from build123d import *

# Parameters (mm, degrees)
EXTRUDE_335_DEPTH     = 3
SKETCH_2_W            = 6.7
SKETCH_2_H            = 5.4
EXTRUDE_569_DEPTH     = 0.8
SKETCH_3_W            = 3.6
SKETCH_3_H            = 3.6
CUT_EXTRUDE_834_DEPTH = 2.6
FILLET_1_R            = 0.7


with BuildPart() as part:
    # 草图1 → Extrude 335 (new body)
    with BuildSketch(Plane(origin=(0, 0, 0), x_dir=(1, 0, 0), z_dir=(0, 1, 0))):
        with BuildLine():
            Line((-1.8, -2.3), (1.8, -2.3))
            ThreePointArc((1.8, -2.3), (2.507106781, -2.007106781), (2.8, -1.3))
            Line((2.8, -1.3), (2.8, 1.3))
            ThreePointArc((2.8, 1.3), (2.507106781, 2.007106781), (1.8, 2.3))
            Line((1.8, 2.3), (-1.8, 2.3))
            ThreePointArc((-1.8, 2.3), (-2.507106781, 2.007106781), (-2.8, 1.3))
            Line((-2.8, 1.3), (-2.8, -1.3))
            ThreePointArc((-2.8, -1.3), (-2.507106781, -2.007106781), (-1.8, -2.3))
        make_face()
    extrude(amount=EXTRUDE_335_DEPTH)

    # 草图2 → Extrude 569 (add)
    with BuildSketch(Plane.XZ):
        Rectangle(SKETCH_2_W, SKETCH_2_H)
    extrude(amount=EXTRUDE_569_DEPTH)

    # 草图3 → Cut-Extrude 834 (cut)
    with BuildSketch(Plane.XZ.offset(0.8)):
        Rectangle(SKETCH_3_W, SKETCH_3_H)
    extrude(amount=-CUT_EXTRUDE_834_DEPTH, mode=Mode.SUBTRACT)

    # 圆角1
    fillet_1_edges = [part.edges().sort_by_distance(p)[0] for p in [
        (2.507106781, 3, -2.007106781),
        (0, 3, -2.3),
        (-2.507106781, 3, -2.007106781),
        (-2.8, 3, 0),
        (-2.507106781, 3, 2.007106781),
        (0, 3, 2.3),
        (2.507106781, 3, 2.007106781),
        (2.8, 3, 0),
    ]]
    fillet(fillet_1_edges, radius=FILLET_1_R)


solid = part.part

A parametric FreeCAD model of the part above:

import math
import FreeCAD as App
import Part
import Sketcher
Q = App.Units.Quantity


def edges_at(feature, points):
    """Names of the edges that pass closest to the given points."""
    edges = feature.Shape.Edges
    near = lambda p: min(range(len(edges)), key=lambda i: edges[i].distToShape(Part.Vertex(*p))[0])
    return sorted({f"Edge{near(p) + 1}" for p in points})


def add_polygon(sketch, points):
    """Adds a closed chain of lines whose ends are joined by coincident constraints."""
    first, n = sketch.GeometryCount, len(points)
    for a, b in zip(points, points[1:] + points[:1]):
        sketch.addGeometry(Part.LineSegment(App.Vector(*a, 0), App.Vector(*b, 0)), False)
    for i in range(n):
        sketch.addConstraint(Sketcher.Constraint("Coincident", first + i, 2, first + (i + 1) % n, 1))

doc = App.newDocument("Part")
params = doc.addObject("Spreadsheet::Sheet", "Params")
for row, (alias, value) in enumerate([
    ("sketch1_radius", "1 mm"),
    ("sketch1_width", "3.6 mm"),
    ("sketch1_height", "2.6 mm"),
    ("pad1_length", "3 mm"),
    ("sketch2_width", "6.7 mm"),
    ("sketch2_height", "5.4 mm"),
    ("pad2_length", "0.8 mm"),
    ("sketch3_width", "3.6 mm"),
    ("pocket1_length", "2.6 mm"),
    ("fillet_radius", "0.7 mm"),
], start=1):
    params.set(f"A{row}", alias)
    params.set(f"B{row}", "=" + value)
    params.setAlias(f"B{row}", alias)

body = doc.addObject("PartDesign::Body", "Body")

# Sketch on XZ plane
sketch1 = body.newObject("Sketcher::SketchObject", "Sketch")
sketch1.AttachmentSupport = (doc.getObject("XZ_Plane"), [""])
sketch1.MapMode = "FlatFace"
sketch1.addGeometry([
    Part.LineSegment(App.Vector(-1.8, 2.3, 0), App.Vector(1.8, 2.3, 0)),  # 0
    Part.ArcOfCircle(Part.Circle(App.Vector(1.8, 1.3, 0), App.Vector(0, 0, 1), 1), math.radians(0), math.radians(90)),  # 1
    Part.LineSegment(App.Vector(2.8, 1.3, 0), App.Vector(2.8, -1.3, 0)),  # 2
    Part.ArcOfCircle(Part.Circle(App.Vector(1.8, -1.3, 0), App.Vector(0, 0, 1), 1), math.radians(-90), math.radians(0)),  # 3
    Part.LineSegment(App.Vector(1.8, -2.3, 0), App.Vector(-1.8, -2.3, 0)),  # 4
    Part.ArcOfCircle(Part.Circle(App.Vector(-1.8, -1.3, 0), App.Vector(0, 0, 1), 1), math.radians(-180), math.radians(-90)),  # 5
    Part.LineSegment(App.Vector(-2.8, -1.3, 0), App.Vector(-2.8, 1.3, 0)),  # 6
    Part.ArcOfCircle(Part.Circle(App.Vector(-1.8, 1.3, 0), App.Vector(0, 0, 1), 1), math.radians(90), math.radians(180)),  # 7
], False)
sketch1.addConstraint([
    Sketcher.Constraint("Tangent", 0, 2, 1, 2),
    Sketcher.Constraint("Tangent", 1, 1, 2, 1),
    Sketcher.Constraint("Tangent", 2, 2, 3, 2),
    Sketcher.Constraint("Tangent", 3, 1, 4, 1),
    Sketcher.Constraint("Tangent", 4, 2, 5, 2),
    Sketcher.Constraint("Tangent", 5, 1, 6, 1),
    Sketcher.Constraint("Tangent", 6, 2, 7, 2),
    Sketcher.Constraint("Tangent", 7, 1, 0, 1),
    Sketcher.Constraint("Horizontal", 0),
    Sketcher.Constraint("Vertical", 2),
    Sketcher.Constraint("Horizontal", 4),
    Sketcher.Constraint("Vertical", 6),
    Sketcher.Constraint("Equal", 1, 3),
    Sketcher.Constraint("Equal", 3, 5),
    Sketcher.Constraint("Equal", 5, 7),
    Sketcher.Constraint("Symmetric", 1, 3, 5, 3, -1, 1),
    Sketcher.Constraint("Radius", 1, Q("1 mm")),
    Sketcher.Constraint("DistanceX", 0, 1, 0, 2, Q("3.6 mm")),
    Sketcher.Constraint("DistanceY", 2, 2, 2, 1, Q("2.6 mm")),
])
sketch1.setExpression("Constraints[16]", "Params.sketch1_radius")
sketch1.setExpression("Constraints[17]", "Params.sketch1_width")
sketch1.setExpression("Constraints[18]", "Params.sketch1_height")
pad1 = body.newObject("PartDesign::Pad", "Pad")
pad1.Profile = sketch1
pad1.setExpression("Length", "Params.pad1_length")
pad1.Reversed = True

# Sketch on XZ plane
sketch2 = body.newObject("Sketcher::SketchObject", "Sketch001")
sketch2.AttachmentSupport = (doc.getObject("XZ_Plane"), [""])
sketch2.MapMode = "FlatFace"
add_polygon(sketch2, [(-3, 3), (-3, -3), (3, -3), (3, 3)])  # lines 0-3
sketch2.addConstraint([
    Sketcher.Constraint("Vertical", 0),
    Sketcher.Constraint("Horizontal", 1),
    Sketcher.Constraint("Vertical", 2),
    Sketcher.Constraint("Horizontal", 3),
    Sketcher.Constraint("Symmetric", 0, 2, 2, 2, -1, 1),
    Sketcher.Constraint("DistanceX", 1, 1, 1, 2, Q("6.7 mm")),
    Sketcher.Constraint("DistanceY", 0, 2, 0, 1, Q("5.4 mm")),
])
sketch2.setExpression("Constraints[9]", "Params.sketch2_width")
sketch2.setExpression("Constraints[10]", "Params.sketch2_height")
pad2 = body.newObject("PartDesign::Pad", "Pad001")
pad2.Profile = sketch2
pad2.setExpression("Length", "Params.pad2_length")

# Sketch on XZ plane
sketch3 = body.newObject("Sketcher::SketchObject", "Sketch002")
sketch3.AttachmentSupport = (doc.getObject("XZ_Plane"), [""])
sketch3.MapMode = "FlatFace"
sketch3.AttachmentOffset = App.Placement(App.Vector(0, 0, 0.8), App.Rotation())
add_polygon(sketch3, [(-1.8, 1.8), (-1.8, -1.8), (1.8, -1.8), (1.8, 1.8)])  # lines 0-3
sketch3.addConstraint([
    Sketcher.Constraint("Vertical", 0),
    Sketcher.Constraint("Horizontal", 1),
    Sketcher.Constraint("Vertical", 2),
    Sketcher.Constraint("Horizontal", 3),
    Sketcher.Constraint("Symmetric", 0, 2, 2, 2, -1, 1),
    Sketcher.Constraint("Equal", 3, 0),
    Sketcher.Constraint("DistanceX", 1, 1, 1, 2, Q("3.6 mm")),
])
sketch3.setExpression("Constraints[10]", "Params.sketch3_width")
pocket1 = body.newObject("PartDesign::Pocket", "Pocket")
pocket1.Profile = sketch3
pocket1.setExpression("Length", "Params.pocket1_length")
doc.recompute()

fillet = body.newObject("PartDesign::Fillet", "Fillet")
fillet.Base = (pocket1, edges_at(pocket1, [
    (2.507, 3, -2.007),
    (0, 3, -2.3),
    (-2.507, 3, -2.007),
    (-2.8, 3, 0),
    (-2.507, 3, 2.007),
    (0, 3, 2.3),
    (2.507, 3, 2.007),
    (2.8, 3, 0),
]))
fillet.setExpression("Radius", "Params.fillet_radius")

doc.recompute()
